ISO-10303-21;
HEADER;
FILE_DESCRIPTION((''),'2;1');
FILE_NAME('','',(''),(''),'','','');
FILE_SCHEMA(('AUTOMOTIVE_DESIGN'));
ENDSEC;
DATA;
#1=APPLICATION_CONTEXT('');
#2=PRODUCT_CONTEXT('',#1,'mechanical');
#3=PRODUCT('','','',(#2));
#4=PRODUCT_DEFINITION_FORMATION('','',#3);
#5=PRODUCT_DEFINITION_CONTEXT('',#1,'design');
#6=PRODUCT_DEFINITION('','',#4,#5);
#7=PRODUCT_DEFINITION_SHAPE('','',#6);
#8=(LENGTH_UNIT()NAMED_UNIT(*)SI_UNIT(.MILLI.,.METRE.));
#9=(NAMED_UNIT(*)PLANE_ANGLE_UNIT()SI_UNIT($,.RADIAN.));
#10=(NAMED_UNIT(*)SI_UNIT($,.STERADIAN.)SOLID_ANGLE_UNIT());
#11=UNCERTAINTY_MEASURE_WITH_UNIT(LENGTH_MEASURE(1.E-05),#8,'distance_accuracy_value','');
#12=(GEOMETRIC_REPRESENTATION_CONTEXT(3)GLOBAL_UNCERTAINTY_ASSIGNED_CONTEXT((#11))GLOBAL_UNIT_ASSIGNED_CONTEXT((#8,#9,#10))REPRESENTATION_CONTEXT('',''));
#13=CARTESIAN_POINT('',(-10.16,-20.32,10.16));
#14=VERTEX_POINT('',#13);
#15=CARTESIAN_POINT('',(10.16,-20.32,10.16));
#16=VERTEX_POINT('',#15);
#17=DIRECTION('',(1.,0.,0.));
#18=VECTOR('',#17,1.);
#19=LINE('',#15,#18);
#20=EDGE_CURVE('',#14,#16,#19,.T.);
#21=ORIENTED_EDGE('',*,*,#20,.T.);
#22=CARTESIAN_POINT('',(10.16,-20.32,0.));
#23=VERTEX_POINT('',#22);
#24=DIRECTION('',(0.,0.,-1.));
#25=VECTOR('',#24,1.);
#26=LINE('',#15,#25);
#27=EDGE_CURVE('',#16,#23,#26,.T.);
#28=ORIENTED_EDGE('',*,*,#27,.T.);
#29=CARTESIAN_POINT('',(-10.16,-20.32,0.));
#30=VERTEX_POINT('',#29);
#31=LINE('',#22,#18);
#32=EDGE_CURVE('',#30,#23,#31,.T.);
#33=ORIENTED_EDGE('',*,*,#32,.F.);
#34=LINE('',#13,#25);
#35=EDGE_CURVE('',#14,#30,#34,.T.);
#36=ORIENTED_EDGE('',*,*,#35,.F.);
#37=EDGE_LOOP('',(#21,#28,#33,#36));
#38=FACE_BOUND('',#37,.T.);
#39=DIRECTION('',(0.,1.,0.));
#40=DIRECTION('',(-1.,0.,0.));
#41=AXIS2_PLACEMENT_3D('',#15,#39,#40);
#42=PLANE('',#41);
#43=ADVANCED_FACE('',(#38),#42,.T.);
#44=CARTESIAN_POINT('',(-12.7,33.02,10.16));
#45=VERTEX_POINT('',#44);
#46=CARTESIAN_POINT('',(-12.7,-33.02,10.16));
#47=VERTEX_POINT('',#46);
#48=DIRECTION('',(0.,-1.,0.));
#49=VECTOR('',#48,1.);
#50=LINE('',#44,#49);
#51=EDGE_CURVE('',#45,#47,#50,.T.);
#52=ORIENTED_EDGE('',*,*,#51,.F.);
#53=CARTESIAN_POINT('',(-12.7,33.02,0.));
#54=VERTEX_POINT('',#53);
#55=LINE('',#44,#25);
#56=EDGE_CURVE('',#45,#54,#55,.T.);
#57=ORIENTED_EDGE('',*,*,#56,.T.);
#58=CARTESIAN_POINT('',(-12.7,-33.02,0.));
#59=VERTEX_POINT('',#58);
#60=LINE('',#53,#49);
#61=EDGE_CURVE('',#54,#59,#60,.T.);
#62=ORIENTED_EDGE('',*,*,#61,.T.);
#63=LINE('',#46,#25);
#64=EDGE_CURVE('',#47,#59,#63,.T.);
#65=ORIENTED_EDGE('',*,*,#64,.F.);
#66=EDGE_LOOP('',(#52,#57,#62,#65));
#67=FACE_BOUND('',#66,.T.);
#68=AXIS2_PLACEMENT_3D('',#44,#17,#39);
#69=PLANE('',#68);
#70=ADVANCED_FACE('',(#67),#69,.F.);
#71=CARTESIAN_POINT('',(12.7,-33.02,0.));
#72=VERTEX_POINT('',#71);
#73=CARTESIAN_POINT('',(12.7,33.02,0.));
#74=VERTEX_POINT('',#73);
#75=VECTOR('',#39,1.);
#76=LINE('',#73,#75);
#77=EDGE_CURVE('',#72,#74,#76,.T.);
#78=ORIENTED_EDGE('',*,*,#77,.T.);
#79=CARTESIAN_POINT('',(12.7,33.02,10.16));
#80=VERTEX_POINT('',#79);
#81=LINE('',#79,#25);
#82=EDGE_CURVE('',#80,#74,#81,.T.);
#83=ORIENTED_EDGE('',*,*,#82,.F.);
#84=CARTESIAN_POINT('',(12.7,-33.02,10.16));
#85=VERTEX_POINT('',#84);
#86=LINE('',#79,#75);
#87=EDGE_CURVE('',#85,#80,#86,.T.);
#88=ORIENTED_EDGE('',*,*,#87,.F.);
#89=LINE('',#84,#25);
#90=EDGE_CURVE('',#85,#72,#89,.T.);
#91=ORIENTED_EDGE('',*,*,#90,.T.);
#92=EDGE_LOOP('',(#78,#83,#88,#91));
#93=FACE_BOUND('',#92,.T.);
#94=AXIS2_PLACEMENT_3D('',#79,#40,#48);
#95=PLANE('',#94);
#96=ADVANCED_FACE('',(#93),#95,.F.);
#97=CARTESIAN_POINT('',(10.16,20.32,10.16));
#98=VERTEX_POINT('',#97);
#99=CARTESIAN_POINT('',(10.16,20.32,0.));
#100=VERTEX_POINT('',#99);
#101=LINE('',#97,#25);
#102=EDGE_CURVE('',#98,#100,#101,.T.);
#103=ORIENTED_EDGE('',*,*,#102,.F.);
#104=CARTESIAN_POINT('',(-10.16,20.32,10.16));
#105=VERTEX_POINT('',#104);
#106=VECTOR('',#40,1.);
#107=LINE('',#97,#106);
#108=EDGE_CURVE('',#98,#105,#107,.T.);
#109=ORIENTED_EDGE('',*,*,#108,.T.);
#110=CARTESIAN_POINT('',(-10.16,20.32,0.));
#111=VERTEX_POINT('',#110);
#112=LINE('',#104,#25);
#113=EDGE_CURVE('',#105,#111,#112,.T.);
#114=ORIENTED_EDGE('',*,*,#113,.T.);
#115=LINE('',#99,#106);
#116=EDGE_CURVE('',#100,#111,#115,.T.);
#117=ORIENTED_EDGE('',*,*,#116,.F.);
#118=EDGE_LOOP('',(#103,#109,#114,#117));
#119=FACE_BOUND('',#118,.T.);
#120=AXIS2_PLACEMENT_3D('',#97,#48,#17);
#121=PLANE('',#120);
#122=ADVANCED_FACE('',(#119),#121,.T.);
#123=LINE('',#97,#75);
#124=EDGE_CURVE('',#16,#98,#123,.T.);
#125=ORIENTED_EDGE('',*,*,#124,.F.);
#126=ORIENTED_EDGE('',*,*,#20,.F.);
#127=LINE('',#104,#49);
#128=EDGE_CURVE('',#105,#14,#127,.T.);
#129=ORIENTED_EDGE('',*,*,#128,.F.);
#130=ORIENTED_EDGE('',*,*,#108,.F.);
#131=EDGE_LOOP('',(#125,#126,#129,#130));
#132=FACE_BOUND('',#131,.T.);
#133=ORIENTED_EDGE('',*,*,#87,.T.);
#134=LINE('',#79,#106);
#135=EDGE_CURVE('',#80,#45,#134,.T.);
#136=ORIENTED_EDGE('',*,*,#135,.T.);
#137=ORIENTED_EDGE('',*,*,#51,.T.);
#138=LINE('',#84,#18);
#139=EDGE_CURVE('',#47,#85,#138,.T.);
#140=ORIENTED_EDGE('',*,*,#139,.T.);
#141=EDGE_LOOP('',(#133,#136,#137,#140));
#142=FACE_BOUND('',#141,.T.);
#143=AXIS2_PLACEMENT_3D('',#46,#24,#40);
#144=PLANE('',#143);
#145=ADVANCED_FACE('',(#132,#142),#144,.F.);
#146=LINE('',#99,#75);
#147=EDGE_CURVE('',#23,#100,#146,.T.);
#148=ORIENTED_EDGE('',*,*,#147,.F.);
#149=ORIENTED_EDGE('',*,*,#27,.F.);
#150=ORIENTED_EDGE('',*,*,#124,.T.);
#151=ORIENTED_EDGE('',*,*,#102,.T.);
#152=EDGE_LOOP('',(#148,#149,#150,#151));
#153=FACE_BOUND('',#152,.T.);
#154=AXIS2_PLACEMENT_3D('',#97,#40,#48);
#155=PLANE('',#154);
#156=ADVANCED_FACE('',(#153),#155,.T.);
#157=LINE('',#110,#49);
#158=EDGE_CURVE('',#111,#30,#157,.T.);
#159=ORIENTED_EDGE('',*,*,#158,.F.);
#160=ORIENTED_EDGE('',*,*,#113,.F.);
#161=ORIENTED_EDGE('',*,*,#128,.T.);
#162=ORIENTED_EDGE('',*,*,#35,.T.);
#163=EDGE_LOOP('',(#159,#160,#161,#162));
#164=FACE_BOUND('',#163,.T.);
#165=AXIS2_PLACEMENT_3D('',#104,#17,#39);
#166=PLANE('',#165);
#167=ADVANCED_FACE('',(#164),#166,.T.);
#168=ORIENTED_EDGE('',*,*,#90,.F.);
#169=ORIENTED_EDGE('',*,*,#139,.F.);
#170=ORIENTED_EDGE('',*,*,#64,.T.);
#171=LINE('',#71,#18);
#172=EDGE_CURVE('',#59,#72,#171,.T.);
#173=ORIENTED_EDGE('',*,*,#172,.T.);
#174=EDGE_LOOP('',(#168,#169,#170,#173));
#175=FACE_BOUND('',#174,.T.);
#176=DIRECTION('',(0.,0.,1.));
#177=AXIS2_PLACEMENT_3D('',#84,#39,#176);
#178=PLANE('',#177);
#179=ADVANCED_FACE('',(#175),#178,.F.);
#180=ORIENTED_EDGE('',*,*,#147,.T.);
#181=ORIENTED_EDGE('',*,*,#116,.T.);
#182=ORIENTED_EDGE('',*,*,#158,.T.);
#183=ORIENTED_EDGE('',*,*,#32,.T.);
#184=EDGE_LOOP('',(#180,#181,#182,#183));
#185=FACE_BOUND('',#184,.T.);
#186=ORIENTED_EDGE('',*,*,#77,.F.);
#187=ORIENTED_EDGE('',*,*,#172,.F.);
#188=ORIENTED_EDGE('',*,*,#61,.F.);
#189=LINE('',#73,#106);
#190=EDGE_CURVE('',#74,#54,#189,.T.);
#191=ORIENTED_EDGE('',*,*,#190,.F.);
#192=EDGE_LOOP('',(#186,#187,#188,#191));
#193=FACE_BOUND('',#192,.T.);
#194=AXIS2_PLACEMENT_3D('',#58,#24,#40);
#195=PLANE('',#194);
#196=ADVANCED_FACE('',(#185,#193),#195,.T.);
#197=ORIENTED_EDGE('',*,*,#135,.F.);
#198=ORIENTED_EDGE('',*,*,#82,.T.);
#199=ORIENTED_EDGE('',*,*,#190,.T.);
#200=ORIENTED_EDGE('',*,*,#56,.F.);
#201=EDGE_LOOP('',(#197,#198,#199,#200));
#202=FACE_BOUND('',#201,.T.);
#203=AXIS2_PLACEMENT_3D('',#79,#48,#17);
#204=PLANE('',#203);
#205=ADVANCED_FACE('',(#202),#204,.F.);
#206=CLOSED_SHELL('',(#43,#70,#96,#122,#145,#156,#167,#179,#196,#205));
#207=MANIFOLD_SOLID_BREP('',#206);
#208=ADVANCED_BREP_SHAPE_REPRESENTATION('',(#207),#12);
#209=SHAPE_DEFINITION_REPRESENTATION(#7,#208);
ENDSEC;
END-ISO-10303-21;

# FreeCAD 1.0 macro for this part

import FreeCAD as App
import Part
import Sketcher

V = App.Vector
Q = App.Units.Quantity


def add_polygon(sketch, points):
    """Adds a closed chain of lines whose ends are joined by coincident constraints."""
    first, n = sketch.GeometryCount, len(points)
    for a, b in zip(points, points[1:] + points[:1]):
        sketch.addGeometry(Part.LineSegment(App.Vector(*a, 0), App.Vector(*b, 0)), False)
    for i in range(n):
        sketch.addConstraint(Sketcher.Constraint("Coincident", first + i, 2, first + (i + 1) % n, 1))

doc = App.newDocument("Part")
body = doc.addObject("PartDesign::Body", "Body")

# Sketch on XY plane
sketch1 = body.newObject("Sketcher::SketchObject", "Sketch")
sketch1.AttachmentSupport = (doc.getObject("XY_Plane"), [""])
sketch1.MapMode = "FlatFace"
add_polygon(sketch1, [(-13, 33), (-13, -33), (13, -33), (13, 33)])  # lines 0-3
add_polygon(sketch1, [(10, -20), (-10, -20), (-10, 20), (10, 20)])  # lines 4-7
sketch1.addConstraint(Sketcher.Constraint("Vertical", 0))
sketch1.addConstraint(Sketcher.Constraint("Horizontal", 1))
sketch1.addConstraint(Sketcher.Constraint("Vertical", 2))
sketch1.addConstraint(Sketcher.Constraint("Horizontal", 3))
sketch1.addConstraint(Sketcher.Constraint("Horizontal", 4))
sketch1.addConstraint(Sketcher.Constraint("Vertical", 5))
sketch1.addConstraint(Sketcher.Constraint("Horizontal", 6))
sketch1.addConstraint(Sketcher.Constraint("Vertical", 7))
sketch1.addConstraint(Sketcher.Constraint("Symmetric", 0, 2, 2, 2, -1, 1))
sketch1.addConstraint(Sketcher.Constraint("Symmetric", 4, 2, 6, 2, -1, 1))
sketch1.addConstraint(Sketcher.Constraint("DistanceX", 1, 1, 1, 2, Q("1 in")))
sketch1.addConstraint(Sketcher.Constraint("DistanceX", 4, 2, 4, 1, Q("0.8 in")))
sketch1.addConstraint(Sketcher.Constraint("DistanceY", 0, 2, 0, 1, Q("2.6 in")))
sketch1.addConstraint(Sketcher.Constraint("DistanceY", 5, 1, 5, 2, Q("1.6 in")))
pad1 = body.newObject("PartDesign::Pad", "Pad")
pad1.Profile = sketch1
pad1.Length = Q("0.4 in")

doc.recompute()
